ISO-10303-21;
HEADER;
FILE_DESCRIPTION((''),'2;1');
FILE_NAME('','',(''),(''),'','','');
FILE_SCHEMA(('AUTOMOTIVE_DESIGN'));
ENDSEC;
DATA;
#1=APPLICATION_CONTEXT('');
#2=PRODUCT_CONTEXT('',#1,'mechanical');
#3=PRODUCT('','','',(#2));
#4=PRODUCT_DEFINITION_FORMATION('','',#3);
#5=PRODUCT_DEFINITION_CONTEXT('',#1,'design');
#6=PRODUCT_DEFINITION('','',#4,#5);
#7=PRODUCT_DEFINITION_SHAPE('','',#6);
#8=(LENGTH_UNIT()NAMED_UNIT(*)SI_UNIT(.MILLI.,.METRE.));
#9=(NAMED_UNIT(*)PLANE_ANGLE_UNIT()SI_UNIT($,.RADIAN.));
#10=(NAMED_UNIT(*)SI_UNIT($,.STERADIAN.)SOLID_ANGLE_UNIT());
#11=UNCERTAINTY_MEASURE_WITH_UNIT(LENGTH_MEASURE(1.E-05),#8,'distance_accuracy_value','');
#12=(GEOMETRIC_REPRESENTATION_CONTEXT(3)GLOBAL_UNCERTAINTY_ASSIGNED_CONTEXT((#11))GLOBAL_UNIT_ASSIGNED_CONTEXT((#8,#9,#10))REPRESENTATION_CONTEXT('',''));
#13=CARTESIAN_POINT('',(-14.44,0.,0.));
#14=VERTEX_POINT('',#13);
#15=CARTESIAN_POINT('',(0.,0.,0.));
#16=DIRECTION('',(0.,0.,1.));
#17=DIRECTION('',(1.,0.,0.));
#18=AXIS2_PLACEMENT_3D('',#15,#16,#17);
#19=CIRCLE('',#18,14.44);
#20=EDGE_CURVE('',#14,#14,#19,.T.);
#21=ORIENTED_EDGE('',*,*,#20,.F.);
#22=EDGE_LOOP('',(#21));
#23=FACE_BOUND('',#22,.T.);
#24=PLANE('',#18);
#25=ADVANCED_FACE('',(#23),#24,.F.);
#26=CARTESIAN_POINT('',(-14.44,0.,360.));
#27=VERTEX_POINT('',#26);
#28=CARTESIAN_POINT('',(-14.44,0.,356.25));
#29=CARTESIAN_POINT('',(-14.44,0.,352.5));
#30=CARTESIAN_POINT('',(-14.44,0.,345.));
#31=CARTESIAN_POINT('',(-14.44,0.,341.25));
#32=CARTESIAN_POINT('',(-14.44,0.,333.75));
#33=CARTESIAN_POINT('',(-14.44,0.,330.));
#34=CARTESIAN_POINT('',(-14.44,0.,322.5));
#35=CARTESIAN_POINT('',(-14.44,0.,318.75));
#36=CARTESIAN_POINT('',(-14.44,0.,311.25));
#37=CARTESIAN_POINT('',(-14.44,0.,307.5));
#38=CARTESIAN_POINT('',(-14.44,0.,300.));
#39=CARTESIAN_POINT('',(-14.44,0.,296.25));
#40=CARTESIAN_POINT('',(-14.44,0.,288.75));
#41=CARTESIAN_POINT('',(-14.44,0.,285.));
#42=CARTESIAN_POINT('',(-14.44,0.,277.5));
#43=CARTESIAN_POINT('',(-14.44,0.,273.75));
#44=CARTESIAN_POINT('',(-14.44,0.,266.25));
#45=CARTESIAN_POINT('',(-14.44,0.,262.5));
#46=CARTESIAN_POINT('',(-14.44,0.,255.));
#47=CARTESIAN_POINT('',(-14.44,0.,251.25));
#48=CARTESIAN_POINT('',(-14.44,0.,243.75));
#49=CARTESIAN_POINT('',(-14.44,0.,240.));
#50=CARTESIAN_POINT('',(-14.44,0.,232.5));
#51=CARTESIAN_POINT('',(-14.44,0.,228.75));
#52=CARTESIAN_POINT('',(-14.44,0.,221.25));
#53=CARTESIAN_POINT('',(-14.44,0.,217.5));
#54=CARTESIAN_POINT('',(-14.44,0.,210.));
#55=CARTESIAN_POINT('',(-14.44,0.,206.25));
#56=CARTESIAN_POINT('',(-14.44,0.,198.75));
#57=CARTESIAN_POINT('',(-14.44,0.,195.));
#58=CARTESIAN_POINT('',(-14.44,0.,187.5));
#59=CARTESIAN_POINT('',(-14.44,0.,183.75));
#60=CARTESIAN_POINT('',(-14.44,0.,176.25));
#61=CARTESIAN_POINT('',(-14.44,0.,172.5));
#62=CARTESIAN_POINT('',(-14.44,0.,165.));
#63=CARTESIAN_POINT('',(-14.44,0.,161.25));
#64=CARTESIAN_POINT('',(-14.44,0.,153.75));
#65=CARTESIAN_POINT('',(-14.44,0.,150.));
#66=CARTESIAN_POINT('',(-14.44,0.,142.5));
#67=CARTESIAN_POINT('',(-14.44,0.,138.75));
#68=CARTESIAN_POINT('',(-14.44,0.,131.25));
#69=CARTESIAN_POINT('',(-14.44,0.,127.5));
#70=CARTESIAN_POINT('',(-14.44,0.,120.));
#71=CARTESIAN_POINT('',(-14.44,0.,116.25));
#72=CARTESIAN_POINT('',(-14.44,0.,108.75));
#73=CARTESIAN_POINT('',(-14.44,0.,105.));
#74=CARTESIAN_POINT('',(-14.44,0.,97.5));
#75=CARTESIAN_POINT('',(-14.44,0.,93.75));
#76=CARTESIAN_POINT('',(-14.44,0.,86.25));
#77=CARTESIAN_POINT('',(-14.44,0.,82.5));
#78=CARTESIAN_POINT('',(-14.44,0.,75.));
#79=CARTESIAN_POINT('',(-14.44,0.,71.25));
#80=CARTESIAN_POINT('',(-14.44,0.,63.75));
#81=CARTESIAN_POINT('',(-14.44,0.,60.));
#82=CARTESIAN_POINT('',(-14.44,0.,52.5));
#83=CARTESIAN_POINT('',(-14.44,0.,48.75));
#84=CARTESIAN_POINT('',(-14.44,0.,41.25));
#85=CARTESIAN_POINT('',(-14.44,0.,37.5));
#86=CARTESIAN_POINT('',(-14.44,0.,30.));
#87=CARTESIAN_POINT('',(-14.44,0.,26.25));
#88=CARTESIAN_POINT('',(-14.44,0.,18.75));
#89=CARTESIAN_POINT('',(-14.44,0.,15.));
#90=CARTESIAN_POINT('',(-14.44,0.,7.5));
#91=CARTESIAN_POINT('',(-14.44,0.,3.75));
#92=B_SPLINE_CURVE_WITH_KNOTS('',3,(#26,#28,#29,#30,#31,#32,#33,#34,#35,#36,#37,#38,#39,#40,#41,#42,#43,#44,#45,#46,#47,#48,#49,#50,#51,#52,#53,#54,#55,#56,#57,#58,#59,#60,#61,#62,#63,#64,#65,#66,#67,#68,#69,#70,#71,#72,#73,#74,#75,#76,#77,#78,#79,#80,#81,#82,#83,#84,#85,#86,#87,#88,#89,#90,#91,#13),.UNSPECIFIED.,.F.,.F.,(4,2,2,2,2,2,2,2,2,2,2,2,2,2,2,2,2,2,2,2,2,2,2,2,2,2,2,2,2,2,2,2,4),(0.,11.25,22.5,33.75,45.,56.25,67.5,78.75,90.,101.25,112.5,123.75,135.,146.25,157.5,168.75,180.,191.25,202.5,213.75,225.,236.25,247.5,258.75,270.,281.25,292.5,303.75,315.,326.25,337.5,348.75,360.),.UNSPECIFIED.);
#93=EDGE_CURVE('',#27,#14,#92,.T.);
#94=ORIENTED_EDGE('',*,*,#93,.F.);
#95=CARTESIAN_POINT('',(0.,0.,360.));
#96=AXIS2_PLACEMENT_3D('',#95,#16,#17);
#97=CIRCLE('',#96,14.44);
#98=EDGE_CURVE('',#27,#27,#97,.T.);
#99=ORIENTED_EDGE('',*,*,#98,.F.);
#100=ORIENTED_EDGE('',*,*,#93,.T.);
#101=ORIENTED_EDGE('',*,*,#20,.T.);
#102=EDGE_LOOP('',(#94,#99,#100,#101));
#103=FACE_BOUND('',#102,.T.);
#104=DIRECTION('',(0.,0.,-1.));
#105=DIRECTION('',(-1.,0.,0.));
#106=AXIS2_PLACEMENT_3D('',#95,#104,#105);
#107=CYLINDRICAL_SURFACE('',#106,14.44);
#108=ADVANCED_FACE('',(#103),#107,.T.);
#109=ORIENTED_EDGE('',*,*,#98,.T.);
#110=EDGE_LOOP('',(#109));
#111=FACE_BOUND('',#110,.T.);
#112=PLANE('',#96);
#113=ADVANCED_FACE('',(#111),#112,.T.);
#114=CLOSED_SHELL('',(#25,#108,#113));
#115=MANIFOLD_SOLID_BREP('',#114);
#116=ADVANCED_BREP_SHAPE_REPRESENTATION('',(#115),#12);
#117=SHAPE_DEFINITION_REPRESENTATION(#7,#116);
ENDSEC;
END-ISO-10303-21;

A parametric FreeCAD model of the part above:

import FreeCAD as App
import Part
import Sketcher

V = App.Vector
Q = App.Units.Quantity

doc = App.newDocument("Part")
body = doc.addObject("PartDesign::Body", "Body")

# Sketch on XY plane
sketch1 = doc.addObject("Sketcher::SketchObject", "Sketch")
body.addObject(sketch1)
sketch1.AttachmentSupport = (doc.XY_Plane, [""])
sketch1.MapMode = "FlatFace"
sketch1.addGeometry(Part.Circle(V(0, 0, 0), V(0, 0, 1), 14), False)
sketch1.addConstraint([
    Sketcher.Constraint("Coincident", 0, 3, -1, 1),
    Sketcher.Constraint("Diameter", 0, Q("28.88 mm")),
])
pad1 = doc.addObject("PartDesign::Pad", "Pad")
body.addObject(pad1)
pad1.Profile = sketch1
pad1.Length = 360

doc.recompute()
